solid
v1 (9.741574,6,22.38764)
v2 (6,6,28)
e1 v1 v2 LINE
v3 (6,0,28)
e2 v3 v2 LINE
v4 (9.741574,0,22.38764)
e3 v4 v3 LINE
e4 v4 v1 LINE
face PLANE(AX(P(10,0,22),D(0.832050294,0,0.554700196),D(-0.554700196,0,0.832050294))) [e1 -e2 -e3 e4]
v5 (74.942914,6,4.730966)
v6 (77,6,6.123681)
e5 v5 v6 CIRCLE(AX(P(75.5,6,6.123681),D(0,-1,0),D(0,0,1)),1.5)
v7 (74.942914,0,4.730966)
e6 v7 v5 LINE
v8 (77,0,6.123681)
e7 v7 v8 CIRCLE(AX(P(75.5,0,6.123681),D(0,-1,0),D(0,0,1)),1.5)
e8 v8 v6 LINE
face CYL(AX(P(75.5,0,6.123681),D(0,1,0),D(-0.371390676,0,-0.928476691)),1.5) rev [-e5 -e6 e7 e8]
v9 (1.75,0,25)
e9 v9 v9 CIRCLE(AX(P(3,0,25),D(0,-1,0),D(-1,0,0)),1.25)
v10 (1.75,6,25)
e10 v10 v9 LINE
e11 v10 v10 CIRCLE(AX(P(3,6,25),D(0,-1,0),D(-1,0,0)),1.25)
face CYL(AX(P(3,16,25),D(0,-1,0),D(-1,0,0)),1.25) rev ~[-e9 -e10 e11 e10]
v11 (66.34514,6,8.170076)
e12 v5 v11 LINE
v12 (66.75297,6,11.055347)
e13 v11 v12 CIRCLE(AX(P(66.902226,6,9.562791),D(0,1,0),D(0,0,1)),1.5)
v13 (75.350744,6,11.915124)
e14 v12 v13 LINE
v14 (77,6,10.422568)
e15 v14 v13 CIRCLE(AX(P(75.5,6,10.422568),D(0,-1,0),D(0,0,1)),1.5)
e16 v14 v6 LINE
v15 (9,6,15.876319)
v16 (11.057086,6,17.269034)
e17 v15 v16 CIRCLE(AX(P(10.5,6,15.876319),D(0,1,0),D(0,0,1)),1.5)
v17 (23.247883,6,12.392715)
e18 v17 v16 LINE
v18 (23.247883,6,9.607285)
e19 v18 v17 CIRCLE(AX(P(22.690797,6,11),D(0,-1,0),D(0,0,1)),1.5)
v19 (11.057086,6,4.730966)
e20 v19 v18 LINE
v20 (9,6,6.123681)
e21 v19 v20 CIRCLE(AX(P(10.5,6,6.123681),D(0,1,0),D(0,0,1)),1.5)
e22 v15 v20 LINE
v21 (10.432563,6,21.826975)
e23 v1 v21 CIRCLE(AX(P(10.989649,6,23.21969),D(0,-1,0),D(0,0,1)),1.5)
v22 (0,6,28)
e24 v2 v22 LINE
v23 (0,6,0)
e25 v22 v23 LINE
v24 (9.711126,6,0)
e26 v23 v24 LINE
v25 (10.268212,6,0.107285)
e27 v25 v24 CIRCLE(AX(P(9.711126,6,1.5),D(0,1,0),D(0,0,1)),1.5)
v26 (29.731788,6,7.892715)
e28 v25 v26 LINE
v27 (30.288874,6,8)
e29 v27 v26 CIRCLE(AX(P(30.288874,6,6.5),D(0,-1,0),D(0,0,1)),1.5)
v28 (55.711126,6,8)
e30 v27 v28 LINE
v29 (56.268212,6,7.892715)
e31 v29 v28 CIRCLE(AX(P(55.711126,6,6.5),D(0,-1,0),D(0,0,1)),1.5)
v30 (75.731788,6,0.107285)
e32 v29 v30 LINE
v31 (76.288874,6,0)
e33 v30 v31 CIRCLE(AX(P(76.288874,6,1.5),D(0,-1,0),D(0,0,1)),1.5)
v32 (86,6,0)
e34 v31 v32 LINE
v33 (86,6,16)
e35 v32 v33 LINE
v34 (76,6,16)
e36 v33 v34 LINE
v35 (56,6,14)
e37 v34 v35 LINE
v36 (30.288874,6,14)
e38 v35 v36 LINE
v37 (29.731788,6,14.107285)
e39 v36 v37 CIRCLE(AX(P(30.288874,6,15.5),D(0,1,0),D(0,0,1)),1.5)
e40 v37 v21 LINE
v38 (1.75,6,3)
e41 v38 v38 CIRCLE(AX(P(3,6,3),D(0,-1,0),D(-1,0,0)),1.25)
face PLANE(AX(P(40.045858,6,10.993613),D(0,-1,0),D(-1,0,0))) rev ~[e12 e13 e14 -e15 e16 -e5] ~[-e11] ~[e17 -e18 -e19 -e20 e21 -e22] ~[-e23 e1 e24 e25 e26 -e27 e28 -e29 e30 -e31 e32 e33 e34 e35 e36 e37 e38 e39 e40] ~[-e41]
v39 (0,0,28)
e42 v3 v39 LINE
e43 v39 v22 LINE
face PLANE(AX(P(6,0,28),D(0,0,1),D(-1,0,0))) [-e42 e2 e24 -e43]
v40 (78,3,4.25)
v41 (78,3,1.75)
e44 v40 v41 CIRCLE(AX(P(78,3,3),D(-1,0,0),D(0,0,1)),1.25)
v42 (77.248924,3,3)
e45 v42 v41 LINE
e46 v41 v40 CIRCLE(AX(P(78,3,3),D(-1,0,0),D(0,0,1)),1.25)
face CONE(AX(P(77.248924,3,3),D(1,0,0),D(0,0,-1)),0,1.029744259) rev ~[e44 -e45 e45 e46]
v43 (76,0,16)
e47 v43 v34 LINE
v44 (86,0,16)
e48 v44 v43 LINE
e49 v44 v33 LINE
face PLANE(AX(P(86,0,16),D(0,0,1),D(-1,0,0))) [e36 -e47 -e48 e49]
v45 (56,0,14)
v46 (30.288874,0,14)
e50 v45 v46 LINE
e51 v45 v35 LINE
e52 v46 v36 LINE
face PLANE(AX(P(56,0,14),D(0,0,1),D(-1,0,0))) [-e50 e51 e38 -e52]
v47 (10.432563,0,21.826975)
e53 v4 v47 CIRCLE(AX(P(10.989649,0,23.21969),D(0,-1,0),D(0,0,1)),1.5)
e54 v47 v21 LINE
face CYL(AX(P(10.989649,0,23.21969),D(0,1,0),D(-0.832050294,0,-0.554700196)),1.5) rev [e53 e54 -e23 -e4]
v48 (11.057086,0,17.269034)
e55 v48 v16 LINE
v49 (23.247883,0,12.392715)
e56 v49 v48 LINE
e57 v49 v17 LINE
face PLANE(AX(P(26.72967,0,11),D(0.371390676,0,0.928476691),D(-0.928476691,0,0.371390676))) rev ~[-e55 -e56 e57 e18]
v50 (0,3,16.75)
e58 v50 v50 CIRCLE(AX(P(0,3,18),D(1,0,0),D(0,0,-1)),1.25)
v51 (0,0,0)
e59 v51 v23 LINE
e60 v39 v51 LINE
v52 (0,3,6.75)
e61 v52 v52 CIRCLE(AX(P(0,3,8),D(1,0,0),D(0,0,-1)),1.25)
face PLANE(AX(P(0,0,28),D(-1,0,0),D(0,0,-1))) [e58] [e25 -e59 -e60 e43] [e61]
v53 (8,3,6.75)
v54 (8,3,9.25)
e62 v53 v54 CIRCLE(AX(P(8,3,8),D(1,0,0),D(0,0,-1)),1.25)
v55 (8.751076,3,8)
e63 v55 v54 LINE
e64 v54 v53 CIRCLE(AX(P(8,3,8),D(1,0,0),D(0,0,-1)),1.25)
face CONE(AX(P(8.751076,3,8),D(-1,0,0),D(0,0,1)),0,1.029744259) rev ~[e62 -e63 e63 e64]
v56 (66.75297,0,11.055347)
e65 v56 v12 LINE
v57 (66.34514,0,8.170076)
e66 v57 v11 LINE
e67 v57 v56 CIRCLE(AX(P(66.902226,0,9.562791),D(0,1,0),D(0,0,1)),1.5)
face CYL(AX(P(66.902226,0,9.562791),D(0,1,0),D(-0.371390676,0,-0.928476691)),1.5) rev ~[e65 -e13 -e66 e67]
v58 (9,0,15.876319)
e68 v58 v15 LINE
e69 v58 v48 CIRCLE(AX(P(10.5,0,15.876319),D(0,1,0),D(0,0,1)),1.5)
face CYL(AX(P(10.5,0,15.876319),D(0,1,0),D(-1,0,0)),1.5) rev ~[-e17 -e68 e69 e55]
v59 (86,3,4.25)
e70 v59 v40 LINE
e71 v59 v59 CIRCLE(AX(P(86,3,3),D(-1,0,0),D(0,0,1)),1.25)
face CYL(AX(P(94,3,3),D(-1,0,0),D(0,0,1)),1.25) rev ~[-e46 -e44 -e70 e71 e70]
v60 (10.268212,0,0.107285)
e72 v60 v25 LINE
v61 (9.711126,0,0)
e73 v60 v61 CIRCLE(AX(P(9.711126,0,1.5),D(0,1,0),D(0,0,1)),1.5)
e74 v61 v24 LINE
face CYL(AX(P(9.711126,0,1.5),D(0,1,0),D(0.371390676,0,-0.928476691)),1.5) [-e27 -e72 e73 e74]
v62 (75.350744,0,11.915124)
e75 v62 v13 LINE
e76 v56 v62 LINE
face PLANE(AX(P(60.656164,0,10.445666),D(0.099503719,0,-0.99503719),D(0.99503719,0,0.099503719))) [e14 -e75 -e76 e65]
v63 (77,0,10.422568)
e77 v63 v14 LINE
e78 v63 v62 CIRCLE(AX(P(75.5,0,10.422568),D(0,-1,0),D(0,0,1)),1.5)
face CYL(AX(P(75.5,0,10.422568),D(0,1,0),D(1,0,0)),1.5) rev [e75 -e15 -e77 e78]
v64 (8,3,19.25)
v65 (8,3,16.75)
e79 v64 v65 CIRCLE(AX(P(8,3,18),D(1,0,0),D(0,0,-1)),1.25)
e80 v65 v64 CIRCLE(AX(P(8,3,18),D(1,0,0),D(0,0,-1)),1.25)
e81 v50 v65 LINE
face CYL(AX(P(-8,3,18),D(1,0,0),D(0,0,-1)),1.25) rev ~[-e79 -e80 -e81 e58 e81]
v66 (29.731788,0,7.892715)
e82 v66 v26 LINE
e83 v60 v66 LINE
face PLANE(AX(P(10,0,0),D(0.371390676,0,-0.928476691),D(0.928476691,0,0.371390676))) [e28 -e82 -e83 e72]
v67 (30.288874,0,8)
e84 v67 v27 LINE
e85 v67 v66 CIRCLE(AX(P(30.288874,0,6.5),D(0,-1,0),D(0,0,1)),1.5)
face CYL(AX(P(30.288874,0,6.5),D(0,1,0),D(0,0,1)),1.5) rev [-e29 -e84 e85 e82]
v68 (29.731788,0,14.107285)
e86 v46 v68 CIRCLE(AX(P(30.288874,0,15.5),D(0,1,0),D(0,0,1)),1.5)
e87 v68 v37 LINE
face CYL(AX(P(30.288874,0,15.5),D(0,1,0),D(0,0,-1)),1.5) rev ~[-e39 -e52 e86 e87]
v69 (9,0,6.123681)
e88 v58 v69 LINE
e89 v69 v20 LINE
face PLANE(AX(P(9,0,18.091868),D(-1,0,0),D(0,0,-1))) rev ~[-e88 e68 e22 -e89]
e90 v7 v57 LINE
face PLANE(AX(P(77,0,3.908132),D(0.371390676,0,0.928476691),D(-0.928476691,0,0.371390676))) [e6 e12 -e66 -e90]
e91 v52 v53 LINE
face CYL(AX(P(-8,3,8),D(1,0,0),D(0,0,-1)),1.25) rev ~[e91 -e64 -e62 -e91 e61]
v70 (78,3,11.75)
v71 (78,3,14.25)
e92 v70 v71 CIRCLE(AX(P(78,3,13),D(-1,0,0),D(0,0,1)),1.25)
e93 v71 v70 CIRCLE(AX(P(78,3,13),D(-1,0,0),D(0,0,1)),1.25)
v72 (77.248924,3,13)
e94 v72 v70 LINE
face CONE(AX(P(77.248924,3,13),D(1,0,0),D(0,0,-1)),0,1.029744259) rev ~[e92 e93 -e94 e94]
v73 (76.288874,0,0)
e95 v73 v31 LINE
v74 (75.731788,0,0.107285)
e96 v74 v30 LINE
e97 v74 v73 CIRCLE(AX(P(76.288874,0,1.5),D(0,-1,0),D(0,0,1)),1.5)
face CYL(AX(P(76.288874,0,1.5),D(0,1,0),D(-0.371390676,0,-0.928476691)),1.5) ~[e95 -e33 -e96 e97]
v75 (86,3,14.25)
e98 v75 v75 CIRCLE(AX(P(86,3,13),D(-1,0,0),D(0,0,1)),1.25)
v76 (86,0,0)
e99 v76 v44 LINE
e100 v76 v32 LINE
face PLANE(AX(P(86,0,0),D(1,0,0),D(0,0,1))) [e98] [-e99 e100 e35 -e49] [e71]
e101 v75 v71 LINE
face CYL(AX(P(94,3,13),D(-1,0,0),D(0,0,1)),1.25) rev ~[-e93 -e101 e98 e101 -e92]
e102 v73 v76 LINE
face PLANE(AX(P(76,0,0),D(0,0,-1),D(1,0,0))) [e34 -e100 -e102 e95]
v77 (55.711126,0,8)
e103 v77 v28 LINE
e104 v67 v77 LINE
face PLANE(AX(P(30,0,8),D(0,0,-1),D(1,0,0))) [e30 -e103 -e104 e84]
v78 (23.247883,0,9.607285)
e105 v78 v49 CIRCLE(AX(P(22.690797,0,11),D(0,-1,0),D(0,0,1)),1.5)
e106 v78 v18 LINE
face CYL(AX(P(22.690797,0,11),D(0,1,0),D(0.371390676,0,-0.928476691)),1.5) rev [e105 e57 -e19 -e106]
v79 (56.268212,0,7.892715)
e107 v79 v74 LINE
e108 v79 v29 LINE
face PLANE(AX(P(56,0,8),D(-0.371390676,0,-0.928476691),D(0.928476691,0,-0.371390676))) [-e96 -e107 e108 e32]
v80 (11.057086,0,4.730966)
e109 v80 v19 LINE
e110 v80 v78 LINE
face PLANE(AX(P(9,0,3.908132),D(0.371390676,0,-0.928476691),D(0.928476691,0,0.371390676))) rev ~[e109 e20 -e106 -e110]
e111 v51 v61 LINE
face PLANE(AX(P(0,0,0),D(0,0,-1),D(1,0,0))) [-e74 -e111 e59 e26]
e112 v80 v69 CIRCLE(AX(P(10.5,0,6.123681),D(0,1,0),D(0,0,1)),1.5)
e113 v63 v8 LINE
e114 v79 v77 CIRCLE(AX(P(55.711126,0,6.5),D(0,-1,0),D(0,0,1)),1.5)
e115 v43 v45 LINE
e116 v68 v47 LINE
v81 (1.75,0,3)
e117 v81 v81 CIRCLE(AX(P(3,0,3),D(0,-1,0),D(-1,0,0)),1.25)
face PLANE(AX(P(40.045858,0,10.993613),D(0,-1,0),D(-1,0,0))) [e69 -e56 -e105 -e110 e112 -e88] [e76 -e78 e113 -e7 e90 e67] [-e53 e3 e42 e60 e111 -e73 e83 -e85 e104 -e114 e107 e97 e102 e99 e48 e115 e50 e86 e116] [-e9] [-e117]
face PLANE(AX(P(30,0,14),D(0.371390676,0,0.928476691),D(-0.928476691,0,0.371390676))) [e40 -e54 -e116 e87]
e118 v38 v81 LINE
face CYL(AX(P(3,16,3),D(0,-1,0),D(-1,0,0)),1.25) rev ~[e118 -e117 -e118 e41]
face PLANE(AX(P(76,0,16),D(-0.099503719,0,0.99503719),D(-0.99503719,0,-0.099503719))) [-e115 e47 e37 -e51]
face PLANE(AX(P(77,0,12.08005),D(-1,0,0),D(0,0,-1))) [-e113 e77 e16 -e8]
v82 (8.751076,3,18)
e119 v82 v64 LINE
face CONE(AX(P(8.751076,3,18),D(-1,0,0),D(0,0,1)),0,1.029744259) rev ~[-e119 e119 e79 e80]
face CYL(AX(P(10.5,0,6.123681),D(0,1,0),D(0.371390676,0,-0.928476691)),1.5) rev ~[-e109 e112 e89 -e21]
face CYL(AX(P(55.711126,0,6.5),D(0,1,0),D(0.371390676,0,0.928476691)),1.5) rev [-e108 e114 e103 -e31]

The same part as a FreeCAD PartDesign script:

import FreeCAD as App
import Part
import Sketcher
from FreeCAD import Vector
Q = App.Units.Quantity


def edges_at(feature, points):
    """Names of the edges that pass closest to the given points."""
    edges = feature.Shape.Edges
    near = lambda p: min(range(len(edges)), key=lambda i: edges[i].distToShape(Part.Vertex(*p))[0])
    return sorted({f"Edge{near(p) + 1}" for p in points})

doc = App.newDocument("Part")
body = doc.addObject("PartDesign::Body", "Body")

# Sketch on XZ plane
sketch1 = doc.addObject("Sketcher::SketchObject", "Sketch")
body.addObject(sketch1)
sketch1.AttachmentSupport = (doc.XZ_Plane, [""])
sketch1.MapMode = "FlatFace"
sketch1.addGeometry([
    Part.LineSegment(Vector(76, 0, 0), Vector(56, 8, 0)),  # 0
    Part.LineSegment(Vector(56, 8, 0), Vector(30, 8, 0)),  # 1
    Part.LineSegment(Vector(30, 8, 0), Vector(10, 0, 0)),  # 2
    Part.LineSegment(Vector(10, 0, 0), Vector(0, 0, 0)),  # 3
    Part.LineSegment(Vector(0, 0, 0), Vector(0, 28, 0)),  # 4
    Part.LineSegment(Vector(0, 28, 0), Vector(6, 28, 0)),  # 5
    Part.LineSegment(Vector(6, 28, 0), Vector(10, 22, 0)),  # 6
    Part.LineSegment(Vector(10, 22, 0), Vector(30, 14, 0)),  # 7
    Part.LineSegment(Vector(30, 14, 0), Vector(56, 14, 0)),  # 8
    Part.LineSegment(Vector(56, 14, 0), Vector(76, 16, 0)),  # 9
    Part.LineSegment(Vector(76, 16, 0), Vector(86, 16, 0)),  # 10
    Part.LineSegment(Vector(86, 16, 0), Vector(86, 0, 0)),  # 11
    Part.LineSegment(Vector(86, 0, 0), Vector(76, 0, 0)),  # 12
    Part.LineSegment(Vector(61, 10, 0), Vector(77, 4, 0)),  # 13
    Part.LineSegment(Vector(77, 4, 0), Vector(77, 12, 0)),  # 14
    Part.LineSegment(Vector(77, 12, 0), Vector(61, 10, 0)),  # 15
    Part.LineSegment(Vector(9, 4, 0), Vector(27, 11, 0)),  # 16
    Part.LineSegment(Vector(27, 11, 0), Vector(9, 18, 0)),  # 17
    Part.LineSegment(Vector(9, 18, 0), Vector(9, 4, 0)),  # 18
], False)
sketch1.addConstraint([
    Sketcher.Constraint("Coincident", 0, 2, 1, 1),
    Sketcher.Constraint("Coincident", 1, 2, 2, 1),
    Sketcher.Constraint("Coincident", 2, 2, 3, 1),
    Sketcher.Constraint("Coincident", 3, 2, 4, 1),
    Sketcher.Constraint("Coincident", 4, 2, 5, 1),
    Sketcher.Constraint("Coincident", 5, 2, 6, 1),
    Sketcher.Constraint("Coincident", 6, 2, 7, 1),
    Sketcher.Constraint("Coincident", 7, 2, 8, 1),
    Sketcher.Constraint("Coincident", 8, 2, 9, 1),
    Sketcher.Constraint("Coincident", 9, 2, 10, 1),
    Sketcher.Constraint("Coincident", 10, 2, 11, 1),
    Sketcher.Constraint("Coincident", 11, 2, 12, 1),
    Sketcher.Constraint("Coincident", 12, 2, 0, 1),
    Sketcher.Constraint("Coincident", 13, 2, 14, 1),
    Sketcher.Constraint("Coincident", 14, 2, 15, 1),
    Sketcher.Constraint("Coincident", 15, 2, 13, 1),
    Sketcher.Constraint("Coincident", 16, 2, 17, 1),
    Sketcher.Constraint("Coincident", 17, 2, 18, 1),
    Sketcher.Constraint("Coincident", 18, 2, 16, 1),
    Sketcher.Constraint("Horizontal", 1),
    Sketcher.Constraint("Horizontal", 3),
    Sketcher.Constraint("Vertical", 4),
    Sketcher.Constraint("Horizontal", 5),
    Sketcher.Constraint("Horizontal", 8),
    Sketcher.Constraint("Horizontal", 10),
    Sketcher.Constraint("Vertical", 11),
    Sketcher.Constraint("Horizontal", 12),
    Sketcher.Constraint("Vertical", 14),
    Sketcher.Constraint("Vertical", 18),
    Sketcher.Constraint("Coincident", 3, 2, -1, 1),
    Sketcher.Constraint("PointOnObject", 11, 2, -1),
    Sketcher.Constraint("Parallel", 0, 7),
    Sketcher.Constraint("Parallel", 7, 13),
    Sketcher.Constraint("Parallel", 9, 15),
    Sketcher.Constraint("Parallel", 2, 16),
    Sketcher.Constraint("Parallel", 13, 17),
    Sketcher.Constraint("Horizontal", 13, 2, 18, 2),
    Sketcher.Constraint("Vertical", 2, 2, 6, 2),
    Sketcher.Constraint("Vertical", 1, 2, 7, 2),
    Sketcher.Constraint("Vertical", 0, 2, 8, 2),
    Sketcher.Constraint("Vertical", 9, 2, 12, 2),
    Sketcher.Constraint("Equal", 3, 10),
    Sketcher.Constraint("Equal", 0, 2),
    Sketcher.Constraint("DistanceX", 1, 2, 1, 1, Q("26 mm")),
    Sketcher.Constraint("DistanceX", 3, 2, 3, 1, Q("10 mm")),
    Sketcher.Constraint("DistanceX", 5, 1, 5, 2, Q("6 mm")),
    Sketcher.Constraint("DistanceY", 4, 1, 4, 2, Q("28 mm")),
    Sketcher.Constraint("DistanceY", 11, 2, 11, 1, Q("16 mm")),
    Sketcher.Constraint("DistanceX", -1, 1, 0, 2, Q("56 mm")),
    Sketcher.Constraint("DistanceY", -1, 1, 0, 2, Q("8 mm")),
    Sketcher.Constraint("DistanceY", -1, 1, 6, 2, Q("22 mm")),
    Sketcher.Constraint("DistanceX", -1, 1, 13, 2, Q("77 mm")),
    Sketcher.Constraint("DistanceY", -1, 1, 16, 2, Q("11 mm")),
    Sketcher.Constraint("DistanceX", -1, 1, 17, 2, Q("9 mm")),
    Sketcher.Constraint("Distance", 13, Q("17.60285 mm")),
    Sketcher.Constraint("Distance", 16, Q("19.095439 mm")),
])
pad1 = doc.addObject("PartDesign::Pad", "Pad")
body.addObject(pad1)
pad1.Profile = sketch1
pad1.Length = 6
pad1.Reversed = True

# Sketch on XZ plane
sketch2 = doc.addObject("Sketcher::SketchObject", "Sketch001")
body.addObject(sketch2)
sketch2.AttachmentSupport = (doc.XZ_Plane, [""])
sketch2.MapMode = "FlatFace"
sketch2.AttachmentOffset = App.Placement(Vector(0, 0, -6), App.Rotation())
sketch2.addGeometry([
    Part.Circle(Vector(3, 3, 0), Vector(0, 0, 1), 1.2),
    Part.Circle(Vector(3, 25, 0), Vector(0, 0, 1), 1.2),
], False)
sketch2.addConstraint([
    Sketcher.Constraint("Equal", 0, 1),
    Sketcher.Constraint("Vertical", 0, 3, 1, 3),
    Sketcher.Constraint("Diameter", 0, Q("2.5 mm")),
    Sketcher.Constraint("DistanceX", -1, 1, 0, 3, Q("3 mm")),
    Sketcher.Constraint("DistanceY", -1, 1, 0, 3, Q("3 mm")),
    Sketcher.Constraint("DistanceY", -1, 1, 1, 3, Q("25 mm")),
])
doc.recompute()
hole = doc.addObject("PartDesign::Hole", "Hole")
body.addObject(hole)
hole.Profile = sketch2
hole.ThreadType = "None"
hole.Diameter = 2.5
hole.DepthType = "Dimension"
hole.Depth = 10
hole.DrillPoint = "Angled"
hole.DrillPointAngle = 118
hole.Reversed = True

# Sketch on YZ plane
sketch3 = doc.addObject("Sketcher::SketchObject", "Sketch002")
body.addObject(sketch3)
sketch3.AttachmentSupport = (doc.YZ_Plane, [""])
sketch3.MapMode = "FlatFace"
sketch3.AttachmentOffset = App.Placement(Vector(0, 0, 86), App.Rotation())
sketch3.addGeometry([
    Part.Circle(Vector(3, 13, 0), Vector(0, 0, 1), 1.2),
    Part.Circle(Vector(3, 3, 0), Vector(0, 0, 1), 1.2),
], False)
sketch3.addConstraint([
    Sketcher.Constraint("Equal", 0, 1),
    Sketcher.Constraint("Vertical", 0, 3, 1, 3),
    Sketcher.Constraint("Diameter", 0, Q("2.5 mm")),
    Sketcher.Constraint("DistanceX", -1, 1, 0, 3, Q("3 mm")),
    Sketcher.Constraint("DistanceY", -1, 1, 0, 3, Q("13 mm")),
    Sketcher.Constraint("DistanceY", -1, 1, 1, 3, Q("3 mm")),
])
doc.recompute()
hole2 = doc.addObject("PartDesign::Hole", "Hole001")
body.addObject(hole2)
hole2.Profile = sketch3
hole2.ThreadType = "None"
hole2.Diameter = 2.5
hole2.DepthType = "Dimension"
hole2.Depth = 8
hole2.DrillPoint = "Angled"
hole2.DrillPointAngle = 118

# Sketch on YZ plane
sketch4 = doc.addObject("Sketcher::SketchObject", "Sketch003")
body.addObject(sketch4)
sketch4.AttachmentSupport = (doc.YZ_Plane, [""])
sketch4.MapMode = "FlatFace"
sketch4.addGeometry([
    Part.Circle(Vector(3, 8, 0), Vector(0, 0, 1), 1.2),
    Part.Circle(Vector(3, 18, 0), Vector(0, 0, 1), 1.2),
], False)
sketch4.addConstraint([
    Sketcher.Constraint("Equal", 0, 1),
    Sketcher.Constraint("Vertical", 0, 3, 1, 3),
    Sketcher.Constraint("Diameter", 0, Q("2.5 mm")),
    Sketcher.Constraint("DistanceX", -1, 1, 0, 3, Q("3 mm")),
    Sketcher.Constraint("DistanceY", -1, 1, 0, 3, Q("8 mm")),
    Sketcher.Constraint("DistanceY", -1, 1, 1, 3, Q("18 mm")),
])
doc.recompute()
hole3 = doc.addObject("PartDesign::Hole", "Hole002")
body.addObject(hole3)
hole3.Profile = sketch4
hole3.ThreadType = "None"
hole3.Diameter = 2.5
hole3.DepthType = "Dimension"
hole3.Depth = 8
hole3.DrillPoint = "Angled"
hole3.DrillPointAngle = 118
hole3.Reversed = True
doc.recompute()

fillet = doc.addObject("PartDesign::Fillet", "Fillet")
body.addObject(fillet)
fillet.Base = (hole3, edges_at(hole3, [
    (10, 3, 0),
    (30, 3, 8),
    (56, 3, 8),
    (76, 3, 0),
    (30, 3, 14),
    (10, 3, 22),
    (9, 3, 18.092),
    (26.73, 3, 11),
    (9, 3, 3.908),
    (77, 3, 3.908),
    (60.656, 3, 10.446),
    (77, 3, 12.08),
]))
fillet.Radius = 1.5

doc.recompute()
